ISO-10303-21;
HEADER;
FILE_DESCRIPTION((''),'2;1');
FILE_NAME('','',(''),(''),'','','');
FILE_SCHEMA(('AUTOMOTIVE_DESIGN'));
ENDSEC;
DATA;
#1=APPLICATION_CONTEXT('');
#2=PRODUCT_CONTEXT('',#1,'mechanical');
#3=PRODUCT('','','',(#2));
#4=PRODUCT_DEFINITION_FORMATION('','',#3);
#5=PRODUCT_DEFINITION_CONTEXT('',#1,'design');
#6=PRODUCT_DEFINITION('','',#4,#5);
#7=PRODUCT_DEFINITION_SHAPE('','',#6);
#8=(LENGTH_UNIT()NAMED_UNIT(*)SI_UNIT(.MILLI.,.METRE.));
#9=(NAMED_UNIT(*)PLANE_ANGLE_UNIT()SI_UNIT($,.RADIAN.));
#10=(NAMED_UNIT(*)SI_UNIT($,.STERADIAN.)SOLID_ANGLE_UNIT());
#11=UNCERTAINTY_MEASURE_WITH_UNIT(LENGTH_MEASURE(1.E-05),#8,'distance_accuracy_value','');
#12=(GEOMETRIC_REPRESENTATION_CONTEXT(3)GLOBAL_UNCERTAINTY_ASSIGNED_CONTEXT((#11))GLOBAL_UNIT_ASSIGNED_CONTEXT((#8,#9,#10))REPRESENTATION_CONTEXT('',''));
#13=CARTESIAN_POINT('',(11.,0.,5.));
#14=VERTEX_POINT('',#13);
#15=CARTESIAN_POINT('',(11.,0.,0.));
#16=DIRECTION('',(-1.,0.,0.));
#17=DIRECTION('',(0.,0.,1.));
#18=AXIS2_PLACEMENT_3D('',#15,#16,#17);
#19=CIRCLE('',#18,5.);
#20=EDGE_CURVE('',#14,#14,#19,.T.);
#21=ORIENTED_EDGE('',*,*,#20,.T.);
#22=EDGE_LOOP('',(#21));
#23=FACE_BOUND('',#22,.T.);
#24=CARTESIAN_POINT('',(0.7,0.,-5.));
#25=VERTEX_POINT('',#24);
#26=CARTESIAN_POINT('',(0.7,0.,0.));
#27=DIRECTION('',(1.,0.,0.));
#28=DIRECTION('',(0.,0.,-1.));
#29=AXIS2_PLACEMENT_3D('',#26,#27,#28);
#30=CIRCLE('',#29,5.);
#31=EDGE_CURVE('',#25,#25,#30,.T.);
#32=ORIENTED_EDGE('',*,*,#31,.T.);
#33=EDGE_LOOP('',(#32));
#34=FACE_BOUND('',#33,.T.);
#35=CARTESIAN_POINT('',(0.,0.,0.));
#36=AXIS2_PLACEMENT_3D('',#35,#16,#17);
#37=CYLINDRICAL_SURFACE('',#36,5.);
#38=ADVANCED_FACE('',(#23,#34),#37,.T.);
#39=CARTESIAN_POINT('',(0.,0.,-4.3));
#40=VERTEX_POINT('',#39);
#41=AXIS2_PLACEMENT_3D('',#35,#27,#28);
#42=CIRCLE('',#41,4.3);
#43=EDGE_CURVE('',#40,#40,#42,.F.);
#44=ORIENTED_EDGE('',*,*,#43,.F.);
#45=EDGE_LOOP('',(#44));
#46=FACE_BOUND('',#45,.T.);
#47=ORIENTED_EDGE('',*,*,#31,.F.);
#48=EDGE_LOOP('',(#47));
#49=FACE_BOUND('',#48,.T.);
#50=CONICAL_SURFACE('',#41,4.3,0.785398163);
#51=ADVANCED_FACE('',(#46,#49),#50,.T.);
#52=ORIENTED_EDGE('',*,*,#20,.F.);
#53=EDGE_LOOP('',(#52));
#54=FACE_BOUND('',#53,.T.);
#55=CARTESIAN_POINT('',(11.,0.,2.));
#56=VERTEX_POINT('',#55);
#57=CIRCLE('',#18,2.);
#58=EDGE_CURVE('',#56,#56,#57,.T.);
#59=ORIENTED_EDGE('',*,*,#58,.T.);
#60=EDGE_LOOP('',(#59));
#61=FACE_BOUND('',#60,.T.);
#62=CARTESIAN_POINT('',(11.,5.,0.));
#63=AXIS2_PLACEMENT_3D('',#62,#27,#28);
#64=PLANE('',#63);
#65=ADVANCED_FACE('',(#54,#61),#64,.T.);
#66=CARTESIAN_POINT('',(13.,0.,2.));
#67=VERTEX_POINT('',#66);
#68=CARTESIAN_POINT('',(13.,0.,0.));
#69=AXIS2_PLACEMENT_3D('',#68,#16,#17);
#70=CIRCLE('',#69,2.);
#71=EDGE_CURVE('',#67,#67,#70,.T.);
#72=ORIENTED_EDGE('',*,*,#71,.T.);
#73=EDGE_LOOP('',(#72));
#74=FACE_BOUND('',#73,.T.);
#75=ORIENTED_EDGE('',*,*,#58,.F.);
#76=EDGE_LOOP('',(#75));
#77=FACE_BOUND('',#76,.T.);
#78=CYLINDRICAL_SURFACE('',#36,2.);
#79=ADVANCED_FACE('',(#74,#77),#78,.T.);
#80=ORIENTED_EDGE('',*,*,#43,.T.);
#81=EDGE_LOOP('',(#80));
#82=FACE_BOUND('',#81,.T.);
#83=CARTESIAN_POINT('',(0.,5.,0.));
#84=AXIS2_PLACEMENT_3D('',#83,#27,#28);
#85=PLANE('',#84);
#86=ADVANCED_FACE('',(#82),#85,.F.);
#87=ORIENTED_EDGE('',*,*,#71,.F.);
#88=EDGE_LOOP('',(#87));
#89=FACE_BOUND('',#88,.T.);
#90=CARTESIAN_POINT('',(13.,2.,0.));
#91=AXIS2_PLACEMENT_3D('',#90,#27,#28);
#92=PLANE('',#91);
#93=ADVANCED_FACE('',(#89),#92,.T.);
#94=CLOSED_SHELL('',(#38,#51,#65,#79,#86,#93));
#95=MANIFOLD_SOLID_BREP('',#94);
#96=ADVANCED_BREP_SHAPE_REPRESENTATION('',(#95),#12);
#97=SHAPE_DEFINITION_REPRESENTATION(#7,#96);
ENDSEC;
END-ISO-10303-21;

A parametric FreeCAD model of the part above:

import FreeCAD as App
import Part
import Sketcher

V = App.Vector
Q = App.Units.Quantity


def edges_at(feature, points):
    """Names of the edges that pass closest to the given points."""
    edges = feature.Shape.Edges
    near = lambda p: min(range(len(edges)), key=lambda i: edges[i].distToShape(Part.Vertex(*p))[0])
    return sorted({f"Edge{near(p) + 1}" for p in points})

doc = App.newDocument("Part")
body = doc.addObject("PartDesign::Body", "Body")

sketch1 = body.newObject("Sketcher::SketchObject", "Sketch")
sketch1.AttachmentSupport = (doc.getObject("XY_Plane"), [""])
sketch1.MapMode = "FlatFace"
sketch1.addGeometry(Part.LineSegment(V(0, 5, 0), V(0, 0, 0)), False)
sketch1.addGeometry(Part.LineSegment(V(0, 0, 0), V(13, 0, 0)), False)
sketch1.addGeometry(Part.LineSegment(V(13, 0, 0), V(13, 2, 0)), False)
sketch1.addGeometry(Part.LineSegment(V(13, 2, 0), V(11, 2, 0)), False)
sketch1.addGeometry(Part.LineSegment(V(11, 2, 0), V(11, 5, 0)), False)
sketch1.addGeometry(Part.LineSegment(V(11, 5, 0), V(0, 5, 0)), False)
sketch1.addConstraint(Sketcher.Constraint("Coincident", 0, 2, 1, 1))
sketch1.addConstraint(Sketcher.Constraint("Coincident", 1, 2, 2, 1))
sketch1.addConstraint(Sketcher.Constraint("Coincident", 2, 2, 3, 1))
sketch1.addConstraint(Sketcher.Constraint("Coincident", 3, 2, 4, 1))
sketch1.addConstraint(Sketcher.Constraint("Coincident", 4, 2, 5, 1))
sketch1.addConstraint(Sketcher.Constraint("Coincident", 5, 2, 0, 1))
sketch1.addConstraint(Sketcher.Constraint("Vertical", 0))
sketch1.addConstraint(Sketcher.Constraint("Horizontal", 1))
sketch1.addConstraint(Sketcher.Constraint("Vertical", 2))
sketch1.addConstraint(Sketcher.Constraint("Horizontal", 3))
sketch1.addConstraint(Sketcher.Constraint("Vertical", 4))
sketch1.addConstraint(Sketcher.Constraint("Horizontal", 5))
sketch1.addConstraint(Sketcher.Constraint("Coincident", 0, 2, -1, 1))
sketch1.addConstraint(Sketcher.Constraint("Equal", 3, 2))
sketch1.addConstraint(Sketcher.Constraint("DistanceX", 1, 1, 1, 2, Q("13 mm")))
sketch1.addConstraint(Sketcher.Constraint("DistanceX", 3, 2, 3, 1, Q("2 mm")))
sketch1.addConstraint(Sketcher.Constraint("DistanceY", 0, 2, 0, 1, Q("5 mm")))
revolution = body.newObject("PartDesign::Revolution", "Revolution")
revolution.Profile = sketch1
revolution.ReferenceAxis = (sketch1, ["H_Axis"])
revolution.Angle = 360
doc.recompute()

chamfer = body.newObject("PartDesign::Chamfer", "Chamfer")
chamfer.Base = (revolution, edges_at(revolution, [(0, 0, -5)]))
chamfer.Size = 0.7

doc.recompute()
